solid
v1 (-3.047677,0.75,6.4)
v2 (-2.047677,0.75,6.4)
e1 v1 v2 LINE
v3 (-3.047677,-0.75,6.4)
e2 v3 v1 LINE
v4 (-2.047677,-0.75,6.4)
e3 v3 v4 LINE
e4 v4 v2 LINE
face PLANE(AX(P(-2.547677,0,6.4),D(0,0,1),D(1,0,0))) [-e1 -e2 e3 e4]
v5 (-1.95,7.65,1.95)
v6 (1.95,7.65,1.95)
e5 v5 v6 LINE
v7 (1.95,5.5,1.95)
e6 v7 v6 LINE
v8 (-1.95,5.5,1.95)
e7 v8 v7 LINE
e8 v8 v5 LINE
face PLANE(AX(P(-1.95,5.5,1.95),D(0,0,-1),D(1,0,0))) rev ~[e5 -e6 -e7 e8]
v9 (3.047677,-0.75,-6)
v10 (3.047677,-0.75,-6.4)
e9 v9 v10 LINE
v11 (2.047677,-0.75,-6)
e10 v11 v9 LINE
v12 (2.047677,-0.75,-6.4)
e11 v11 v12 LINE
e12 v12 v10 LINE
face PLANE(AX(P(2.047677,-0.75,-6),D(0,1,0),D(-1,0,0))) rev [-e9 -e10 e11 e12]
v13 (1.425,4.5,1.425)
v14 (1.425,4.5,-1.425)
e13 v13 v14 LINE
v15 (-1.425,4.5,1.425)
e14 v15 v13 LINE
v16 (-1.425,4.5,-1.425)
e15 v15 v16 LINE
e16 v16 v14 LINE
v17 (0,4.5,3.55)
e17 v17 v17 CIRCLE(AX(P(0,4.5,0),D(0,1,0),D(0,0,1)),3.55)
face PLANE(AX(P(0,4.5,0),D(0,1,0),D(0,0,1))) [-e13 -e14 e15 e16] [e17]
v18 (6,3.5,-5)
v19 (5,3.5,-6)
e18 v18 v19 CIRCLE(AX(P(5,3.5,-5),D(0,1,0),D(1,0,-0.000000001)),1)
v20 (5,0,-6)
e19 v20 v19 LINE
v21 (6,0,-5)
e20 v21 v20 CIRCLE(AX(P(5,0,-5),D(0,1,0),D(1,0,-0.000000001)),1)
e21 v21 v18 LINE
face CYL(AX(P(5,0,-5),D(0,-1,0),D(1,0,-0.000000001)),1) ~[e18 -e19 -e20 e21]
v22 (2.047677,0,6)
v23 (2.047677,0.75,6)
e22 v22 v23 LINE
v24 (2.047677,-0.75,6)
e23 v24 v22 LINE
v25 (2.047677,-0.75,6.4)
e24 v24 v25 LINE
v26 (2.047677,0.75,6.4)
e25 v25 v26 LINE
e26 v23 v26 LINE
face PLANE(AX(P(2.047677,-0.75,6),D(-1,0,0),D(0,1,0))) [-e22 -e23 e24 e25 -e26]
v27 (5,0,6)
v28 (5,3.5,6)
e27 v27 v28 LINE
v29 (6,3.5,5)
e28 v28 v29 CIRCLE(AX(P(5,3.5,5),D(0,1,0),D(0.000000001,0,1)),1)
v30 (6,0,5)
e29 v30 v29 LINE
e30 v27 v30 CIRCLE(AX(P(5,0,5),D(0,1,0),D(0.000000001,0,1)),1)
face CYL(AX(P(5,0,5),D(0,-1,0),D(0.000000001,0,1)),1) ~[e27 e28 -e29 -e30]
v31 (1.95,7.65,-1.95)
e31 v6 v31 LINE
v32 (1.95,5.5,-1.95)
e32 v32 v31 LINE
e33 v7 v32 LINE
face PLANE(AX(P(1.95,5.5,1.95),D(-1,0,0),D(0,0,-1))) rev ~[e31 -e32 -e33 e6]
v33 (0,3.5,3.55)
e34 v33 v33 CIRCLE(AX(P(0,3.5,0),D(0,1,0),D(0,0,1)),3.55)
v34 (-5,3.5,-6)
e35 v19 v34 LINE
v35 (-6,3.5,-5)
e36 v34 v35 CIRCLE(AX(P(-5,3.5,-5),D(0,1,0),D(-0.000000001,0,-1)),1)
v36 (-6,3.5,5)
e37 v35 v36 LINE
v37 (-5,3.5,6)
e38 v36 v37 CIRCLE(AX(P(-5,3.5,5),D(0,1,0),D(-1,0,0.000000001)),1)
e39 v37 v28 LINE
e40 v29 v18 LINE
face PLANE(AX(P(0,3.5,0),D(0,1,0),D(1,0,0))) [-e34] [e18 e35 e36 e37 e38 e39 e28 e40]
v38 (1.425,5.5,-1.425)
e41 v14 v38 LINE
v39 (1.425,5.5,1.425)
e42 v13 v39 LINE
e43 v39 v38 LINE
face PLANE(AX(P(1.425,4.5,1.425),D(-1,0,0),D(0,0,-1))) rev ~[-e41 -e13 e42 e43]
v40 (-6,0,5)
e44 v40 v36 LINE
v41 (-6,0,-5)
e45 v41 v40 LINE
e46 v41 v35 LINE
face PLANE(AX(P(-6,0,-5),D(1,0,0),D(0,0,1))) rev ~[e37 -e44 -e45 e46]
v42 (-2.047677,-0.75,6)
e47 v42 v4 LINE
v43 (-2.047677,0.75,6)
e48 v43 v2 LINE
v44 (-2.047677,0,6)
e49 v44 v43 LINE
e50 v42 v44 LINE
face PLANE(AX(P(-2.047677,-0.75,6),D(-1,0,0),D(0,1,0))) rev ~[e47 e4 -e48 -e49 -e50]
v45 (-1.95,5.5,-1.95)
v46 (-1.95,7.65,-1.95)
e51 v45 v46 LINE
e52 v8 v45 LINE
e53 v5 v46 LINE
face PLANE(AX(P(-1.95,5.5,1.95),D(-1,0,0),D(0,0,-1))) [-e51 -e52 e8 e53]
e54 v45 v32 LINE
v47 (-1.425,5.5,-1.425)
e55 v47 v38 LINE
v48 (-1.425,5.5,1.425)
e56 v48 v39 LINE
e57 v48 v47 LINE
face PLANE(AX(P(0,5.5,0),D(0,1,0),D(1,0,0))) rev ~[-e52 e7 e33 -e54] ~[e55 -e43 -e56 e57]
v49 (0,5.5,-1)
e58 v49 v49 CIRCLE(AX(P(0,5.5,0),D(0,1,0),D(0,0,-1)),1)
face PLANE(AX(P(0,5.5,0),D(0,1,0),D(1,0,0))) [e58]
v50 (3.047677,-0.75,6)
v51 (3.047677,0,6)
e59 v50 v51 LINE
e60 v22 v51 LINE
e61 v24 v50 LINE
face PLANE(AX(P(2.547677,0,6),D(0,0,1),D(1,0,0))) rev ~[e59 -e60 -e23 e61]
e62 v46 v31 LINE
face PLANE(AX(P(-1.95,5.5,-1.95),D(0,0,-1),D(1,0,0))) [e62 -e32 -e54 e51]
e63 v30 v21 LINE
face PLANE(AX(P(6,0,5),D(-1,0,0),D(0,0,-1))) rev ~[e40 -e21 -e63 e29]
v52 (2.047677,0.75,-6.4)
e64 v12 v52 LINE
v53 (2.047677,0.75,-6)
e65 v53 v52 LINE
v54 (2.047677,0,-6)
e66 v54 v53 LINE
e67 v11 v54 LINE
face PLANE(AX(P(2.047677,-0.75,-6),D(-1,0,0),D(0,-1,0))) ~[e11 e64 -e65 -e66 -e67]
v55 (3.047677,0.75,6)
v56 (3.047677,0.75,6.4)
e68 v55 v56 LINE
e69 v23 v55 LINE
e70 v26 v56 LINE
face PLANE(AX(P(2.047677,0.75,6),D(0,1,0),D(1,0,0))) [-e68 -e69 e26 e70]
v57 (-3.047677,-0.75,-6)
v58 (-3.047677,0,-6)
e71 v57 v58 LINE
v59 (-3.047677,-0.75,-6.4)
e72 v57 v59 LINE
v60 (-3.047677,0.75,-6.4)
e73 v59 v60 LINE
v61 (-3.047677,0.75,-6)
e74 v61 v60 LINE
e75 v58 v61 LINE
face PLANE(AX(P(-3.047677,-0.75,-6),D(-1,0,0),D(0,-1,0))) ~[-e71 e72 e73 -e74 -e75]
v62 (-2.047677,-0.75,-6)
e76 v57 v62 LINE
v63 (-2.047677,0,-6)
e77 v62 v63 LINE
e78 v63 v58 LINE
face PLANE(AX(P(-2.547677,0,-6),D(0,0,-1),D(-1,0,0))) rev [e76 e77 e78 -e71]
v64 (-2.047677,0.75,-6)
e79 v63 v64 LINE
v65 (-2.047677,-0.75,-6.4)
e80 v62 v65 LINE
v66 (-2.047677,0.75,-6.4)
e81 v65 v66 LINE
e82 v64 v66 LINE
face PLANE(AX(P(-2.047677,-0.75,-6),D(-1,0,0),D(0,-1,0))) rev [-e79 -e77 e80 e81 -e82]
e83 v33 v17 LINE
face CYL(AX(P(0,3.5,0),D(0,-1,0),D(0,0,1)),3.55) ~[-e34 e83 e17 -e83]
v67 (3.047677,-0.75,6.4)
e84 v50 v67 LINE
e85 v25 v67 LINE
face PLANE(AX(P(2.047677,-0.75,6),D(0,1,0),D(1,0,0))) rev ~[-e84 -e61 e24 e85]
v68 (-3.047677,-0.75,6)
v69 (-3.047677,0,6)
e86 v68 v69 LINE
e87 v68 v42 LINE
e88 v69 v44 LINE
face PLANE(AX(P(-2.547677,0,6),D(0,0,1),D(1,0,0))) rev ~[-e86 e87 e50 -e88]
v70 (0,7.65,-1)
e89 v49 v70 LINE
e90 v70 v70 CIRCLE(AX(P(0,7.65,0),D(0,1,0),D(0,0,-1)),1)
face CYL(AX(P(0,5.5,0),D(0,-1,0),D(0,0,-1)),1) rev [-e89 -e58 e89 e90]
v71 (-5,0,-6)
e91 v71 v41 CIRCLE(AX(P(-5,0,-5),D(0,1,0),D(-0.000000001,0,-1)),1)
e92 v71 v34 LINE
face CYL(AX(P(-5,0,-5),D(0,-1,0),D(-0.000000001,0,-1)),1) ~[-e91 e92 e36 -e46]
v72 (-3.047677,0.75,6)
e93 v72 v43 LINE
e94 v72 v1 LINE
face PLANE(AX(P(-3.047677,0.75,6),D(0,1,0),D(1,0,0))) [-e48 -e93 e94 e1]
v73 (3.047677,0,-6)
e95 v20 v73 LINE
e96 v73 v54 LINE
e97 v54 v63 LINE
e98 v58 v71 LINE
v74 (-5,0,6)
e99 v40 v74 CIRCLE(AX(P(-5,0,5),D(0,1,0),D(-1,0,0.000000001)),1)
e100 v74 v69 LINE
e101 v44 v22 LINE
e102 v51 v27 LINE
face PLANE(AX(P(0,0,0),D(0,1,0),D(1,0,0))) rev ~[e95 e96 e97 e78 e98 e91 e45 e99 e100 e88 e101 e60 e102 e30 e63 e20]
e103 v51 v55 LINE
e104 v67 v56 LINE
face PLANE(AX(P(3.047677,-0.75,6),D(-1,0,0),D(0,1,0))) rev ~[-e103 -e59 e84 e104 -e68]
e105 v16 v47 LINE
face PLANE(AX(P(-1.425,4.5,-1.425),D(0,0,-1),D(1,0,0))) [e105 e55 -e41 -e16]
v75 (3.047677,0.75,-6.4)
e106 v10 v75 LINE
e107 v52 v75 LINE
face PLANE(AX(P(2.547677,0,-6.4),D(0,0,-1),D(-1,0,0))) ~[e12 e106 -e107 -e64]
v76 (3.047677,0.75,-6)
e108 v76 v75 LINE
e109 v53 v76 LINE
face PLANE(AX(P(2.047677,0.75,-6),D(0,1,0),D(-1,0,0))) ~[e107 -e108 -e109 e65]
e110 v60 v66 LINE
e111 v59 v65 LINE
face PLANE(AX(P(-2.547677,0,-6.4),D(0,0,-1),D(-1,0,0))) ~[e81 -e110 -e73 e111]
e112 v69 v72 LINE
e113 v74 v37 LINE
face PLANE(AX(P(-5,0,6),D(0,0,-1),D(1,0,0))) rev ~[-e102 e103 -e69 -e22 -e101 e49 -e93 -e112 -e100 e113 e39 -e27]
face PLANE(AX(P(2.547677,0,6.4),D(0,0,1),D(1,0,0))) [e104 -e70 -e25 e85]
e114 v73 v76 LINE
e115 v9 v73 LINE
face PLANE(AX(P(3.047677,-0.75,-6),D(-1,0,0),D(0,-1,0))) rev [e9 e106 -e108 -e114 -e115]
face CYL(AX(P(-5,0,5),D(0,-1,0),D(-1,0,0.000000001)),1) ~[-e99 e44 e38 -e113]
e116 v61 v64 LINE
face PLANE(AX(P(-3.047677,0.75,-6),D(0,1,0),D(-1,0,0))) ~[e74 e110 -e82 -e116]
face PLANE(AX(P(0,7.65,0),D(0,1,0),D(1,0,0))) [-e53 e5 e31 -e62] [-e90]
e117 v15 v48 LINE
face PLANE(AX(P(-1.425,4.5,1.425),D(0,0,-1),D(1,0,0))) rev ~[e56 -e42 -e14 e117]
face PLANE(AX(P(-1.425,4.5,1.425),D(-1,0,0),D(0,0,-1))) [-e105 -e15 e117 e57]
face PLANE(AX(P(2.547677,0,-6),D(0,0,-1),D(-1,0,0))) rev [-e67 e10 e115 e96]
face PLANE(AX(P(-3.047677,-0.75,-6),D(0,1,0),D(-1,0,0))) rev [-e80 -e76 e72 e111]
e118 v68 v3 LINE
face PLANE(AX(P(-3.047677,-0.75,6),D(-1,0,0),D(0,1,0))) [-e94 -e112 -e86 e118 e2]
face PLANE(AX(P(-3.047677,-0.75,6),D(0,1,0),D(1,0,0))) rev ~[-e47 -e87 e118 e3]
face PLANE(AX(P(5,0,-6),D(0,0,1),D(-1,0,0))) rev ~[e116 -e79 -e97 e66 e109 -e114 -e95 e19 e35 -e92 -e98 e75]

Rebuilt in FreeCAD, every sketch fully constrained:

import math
import FreeCAD as App
import Part
import Sketcher
from FreeCAD import Vector
Q = App.Units.Quantity


def add_polygon(sketch, points):
    """Adds a closed chain of lines whose ends are joined by coincident constraints."""
    first, n = sketch.GeometryCount, len(points)
    for a, b in zip(points, points[1:] + points[:1]):
        sketch.addGeometry(Part.LineSegment(App.Vector(*a, 0), App.Vector(*b, 0)), False)
    for i in range(n):
        sketch.addConstraint(Sketcher.Constraint("Coincident", first + i, 2, first + (i + 1) % n, 1))

doc = App.newDocument("Part")
body = doc.addObject("PartDesign::Body", "Body")

# Sketch on XZ plane
sketch1 = body.newObject("Sketcher::SketchObject", "Sketch")
sketch1.AttachmentSupport = (doc.getObject("XZ_Plane"), [""])
sketch1.MapMode = "FlatFace"
sketch1.addGeometry([
    Part.LineSegment(Vector(-5, 6, 0), Vector(5, 6, 0)),  # 0
    Part.ArcOfCircle(Part.Circle(Vector(5, 5, 0), Vector(0, 0, 1), 1), math.radians(0), math.radians(90)),  # 1
    Part.LineSegment(Vector(6, 5, 0), Vector(6, -5, 0)),  # 2
    Part.ArcOfCircle(Part.Circle(Vector(5, -5, 0), Vector(0, 0, 1), 1), math.radians(-90), math.radians(0)),  # 3
    Part.LineSegment(Vector(5, -6, 0), Vector(-5, -6, 0)),  # 4
    Part.ArcOfCircle(Part.Circle(Vector(-5, -5, 0), Vector(0, 0, 1), 1), math.radians(-180), math.radians(-90)),  # 5
    Part.LineSegment(Vector(-6, -5, 0), Vector(-6, 5, 0)),  # 6
    Part.ArcOfCircle(Part.Circle(Vector(-5, 5, 0), Vector(0, 0, 1), 1), math.radians(90), math.radians(180)),  # 7
], False)
sketch1.addConstraint([
    Sketcher.Constraint("Tangent", 0, 2, 1, 2),
    Sketcher.Constraint("Tangent", 1, 1, 2, 1),
    Sketcher.Constraint("Tangent", 2, 2, 3, 2),
    Sketcher.Constraint("Tangent", 3, 1, 4, 1),
    Sketcher.Constraint("Tangent", 4, 2, 5, 2),
    Sketcher.Constraint("Tangent", 5, 1, 6, 1),
    Sketcher.Constraint("Tangent", 6, 2, 7, 2),
    Sketcher.Constraint("Tangent", 7, 1, 0, 1),
    Sketcher.Constraint("Horizontal", 0),
    Sketcher.Constraint("Vertical", 2),
    Sketcher.Constraint("Horizontal", 4),
    Sketcher.Constraint("Vertical", 6),
    Sketcher.Constraint("Equal", 1, 3),
    Sketcher.Constraint("Equal", 3, 5),
    Sketcher.Constraint("Equal", 5, 7),
    Sketcher.Constraint("Symmetric", 1, 3, 5, 3, -1, 1),
    Sketcher.Constraint("Equal", 4, 2),
    Sketcher.Constraint("Radius", 1, Q("1 mm")),
    Sketcher.Constraint("DistanceX", 0, 1, 0, 2, Q("10 mm")),
])
pad1 = body.newObject("PartDesign::Pad", "Pad")
pad1.Profile = sketch1
pad1.Length = 3.5
pad1.Reversed = True

# Sketch on XZ plane
sketch2 = body.newObject("Sketcher::SketchObject", "Sketch001")
sketch2.AttachmentSupport = (doc.getObject("XZ_Plane"), [""])
sketch2.MapMode = "FlatFace"
sketch2.AttachmentOffset = App.Placement(Vector(0, 0, -3.5), App.Rotation())
sketch2.addGeometry(Part.Circle(Vector(0, 0, 0), Vector(0, 0, 1), 3.5), False)
sketch2.addConstraint([
    Sketcher.Constraint("Coincident", 0, 3, -1, 1),
    Sketcher.Constraint("Diameter", 0, Q("7.1 mm")),
])
pad2 = body.newObject("PartDesign::Pad", "Pad001")
pad2.Profile = sketch2
pad2.Length = 1
pad2.Reversed = True

# Sketch on XZ plane
sketch3 = body.newObject("Sketcher::SketchObject", "Sketch002")
sketch3.AttachmentSupport = (doc.getObject("XZ_Plane"), [""])
sketch3.MapMode = "FlatFace"
sketch3.AttachmentOffset = App.Placement(Vector(0, 0, -4.5), App.Rotation())
add_polygon(sketch3, [(-1.4, -1.4), (-1.4, 1.4), (1.4, 1.4), (1.4, -1.4)])  # lines 0-3
sketch3.addConstraint([
    Sketcher.Constraint("Vertical", 0),
    Sketcher.Constraint("Horizontal", 1),
    Sketcher.Constraint("Vertical", 2),
    Sketcher.Constraint("Horizontal", 3),
    Sketcher.Constraint("Symmetric", 0, 2, 2, 2, -1, 1),
    Sketcher.Constraint("Equal", 3, 0),
    Sketcher.Constraint("DistanceX", 1, 1, 1, 2, Q("2.85 mm")),
])
pad3 = body.newObject("PartDesign::Pad", "Pad002")
pad3.Profile = sketch3
pad3.Length = 1
pad3.Reversed = True

# Sketch on XZ plane
sketch4 = body.newObject("Sketcher::SketchObject", "Sketch003")
sketch4.AttachmentSupport = (doc.getObject("XZ_Plane"), [""])
sketch4.MapMode = "FlatFace"
sketch4.AttachmentOffset = App.Placement(Vector(0, 0, -5.5), App.Rotation())
add_polygon(sketch4, [(-1.9, -1.9), (-1.9, 1.9), (1.9, 1.9), (1.9, -1.9)])  # lines 0-3
sketch4.addGeometry(Part.Circle(Vector(0, 0, 0), Vector(0, 0, 1), 1), False)  # 4
sketch4.addConstraint([
    Sketcher.Constraint("Vertical", 0),
    Sketcher.Constraint("Horizontal", 1),
    Sketcher.Constraint("Vertical", 2),
    Sketcher.Constraint("Horizontal", 3),
    Sketcher.Constraint("Coincident", 4, 3, -1, 1),
    Sketcher.Constraint("Symmetric", 0, 2, 2, 2, -1, 1),
    Sketcher.Constraint("Equal", 3, 0),
    Sketcher.Constraint("Diameter", 4, Q("2 mm")),
    Sketcher.Constraint("DistanceX", 1, 1, 1, 2, Q("3.9 mm")),
])
pad4 = body.newObject("PartDesign::Pad", "Pad003")
pad4.Profile = sketch4
pad4.Length = 2.15
pad4.Reversed = True

# Sketch on XY plane
sketch5 = body.newObject("Sketcher::SketchObject", "Sketch004")
sketch5.AttachmentSupport = (doc.getObject("XY_Plane"), [""])
sketch5.MapMode = "FlatFace"
sketch5.AttachmentOffset = App.Placement(Vector(0, 0, 6), App.Rotation())
add_polygon(sketch5, [(-3, 0.8), (-3, -0.8), (-2, -0.8), (-2, 0.8)])  # lines 0-3
add_polygon(sketch5, [(2, 0.8), (2, -0.8), (3, -0.8), (3, 0.8)])  # lines 4-7
sketch5.addConstraint([
    Sketcher.Constraint("Vertical", 0),
    Sketcher.Constraint("Horizontal", 1),
    Sketcher.Constraint("Vertical", 2),
    Sketcher.Constraint("Horizontal", 3),
    Sketcher.Constraint("Vertical", 4),
    Sketcher.Constraint("Horizontal", 5),
    Sketcher.Constraint("Vertical", 6),
    Sketcher.Constraint("Horizontal", 7),
    Sketcher.Constraint("Symmetric", 2, 2, 4, 2, -1, 1),
    Sketcher.Constraint("Symmetric", 0, 2, 6, 2, -1, 1),
    Sketcher.Constraint("Horizontal", 1, 2, 4, 2),
    Sketcher.Constraint("DistanceX", 1, 1, 1, 2, Q("1 mm")),
    Sketcher.Constraint("DistanceY", 0, 2, 0, 1, Q("1.5 mm")),
    Sketcher.Constraint("DistanceX", 0, 2, -1, 1, Q("3.047677 mm")),
])
pad5 = body.newObject("PartDesign::Pad", "Pad004")
pad5.Profile = sketch5
pad5.Length = 0.4
doc.recompute()

mirrored = body.newObject("PartDesign::Mirrored", "Mirrored")
mirrored.Originals = [pad5]
mirrored.MirrorPlane = (doc.getObject("XY_Plane"), [""])
body.Tip = mirrored

doc.recompute()
